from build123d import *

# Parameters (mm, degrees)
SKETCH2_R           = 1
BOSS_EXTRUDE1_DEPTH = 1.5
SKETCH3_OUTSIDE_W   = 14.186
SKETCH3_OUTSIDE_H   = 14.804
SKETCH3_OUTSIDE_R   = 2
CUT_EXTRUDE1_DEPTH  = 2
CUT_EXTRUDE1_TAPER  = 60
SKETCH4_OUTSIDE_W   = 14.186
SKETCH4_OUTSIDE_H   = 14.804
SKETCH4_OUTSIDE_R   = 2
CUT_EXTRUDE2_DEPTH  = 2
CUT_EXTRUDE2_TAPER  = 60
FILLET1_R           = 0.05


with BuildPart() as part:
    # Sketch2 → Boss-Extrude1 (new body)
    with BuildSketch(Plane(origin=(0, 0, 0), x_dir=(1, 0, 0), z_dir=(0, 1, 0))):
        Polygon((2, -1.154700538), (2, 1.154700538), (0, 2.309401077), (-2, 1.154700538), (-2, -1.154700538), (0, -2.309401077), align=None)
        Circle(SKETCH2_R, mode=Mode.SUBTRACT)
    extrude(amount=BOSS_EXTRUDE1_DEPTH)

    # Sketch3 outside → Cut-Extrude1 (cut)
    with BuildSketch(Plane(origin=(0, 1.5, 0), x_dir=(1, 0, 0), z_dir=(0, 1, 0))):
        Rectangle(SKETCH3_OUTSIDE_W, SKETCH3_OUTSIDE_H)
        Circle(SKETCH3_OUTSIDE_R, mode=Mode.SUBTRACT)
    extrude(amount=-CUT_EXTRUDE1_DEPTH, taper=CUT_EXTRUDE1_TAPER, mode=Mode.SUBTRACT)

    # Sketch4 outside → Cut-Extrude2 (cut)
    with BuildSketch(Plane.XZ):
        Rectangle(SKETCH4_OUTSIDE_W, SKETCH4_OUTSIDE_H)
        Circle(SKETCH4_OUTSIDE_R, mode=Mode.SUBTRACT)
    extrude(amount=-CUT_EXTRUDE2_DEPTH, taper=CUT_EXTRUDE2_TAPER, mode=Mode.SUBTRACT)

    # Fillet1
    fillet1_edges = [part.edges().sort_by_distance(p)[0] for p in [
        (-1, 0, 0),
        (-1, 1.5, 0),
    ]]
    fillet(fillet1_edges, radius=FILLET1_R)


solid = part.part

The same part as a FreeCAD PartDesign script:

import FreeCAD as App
import Part
import Sketcher
Q = App.Units.Quantity


def edges_at(feature, points):
    """Names of the edges that pass closest to the given points."""
    edges = feature.Shape.Edges
    near = lambda p: min(range(len(edges)), key=lambda i: edges[i].distToShape(Part.Vertex(*p))[0])
    return sorted({f"Edge{near(p) + 1}" for p in points})

doc = App.newDocument("Part")
body = doc.addObject("PartDesign::Body", "Body")

sketch1 = body.newObject("Sketcher::SketchObject", "Sketch")
sketch1.AttachmentSupport = (doc.getObject("XZ_Plane"), [""])
sketch1.MapMode = "FlatFace"
sketch1.addGeometry([
    Part.LineSegment(App.Vector(2, 1.154701, 0), App.Vector(2, -1.154701, 0)),
    Part.LineSegment(App.Vector(2, -1.154701, 0), App.Vector(0, -2.309401, 0)),
    Part.LineSegment(App.Vector(0, -2.309401, 0), App.Vector(-2, -1.154701, 0)),
    Part.LineSegment(App.Vector(-2, -1.154701, 0), App.Vector(-2, 1.154701, 0)),
    Part.LineSegment(App.Vector(-2, 1.154701, 0), App.Vector(0, 2.309401, 0)),
    Part.LineSegment(App.Vector(0, 2.309401, 0), App.Vector(2, 1.154701, 0)),
    Part.Circle(App.Vector(0, 0, 0), App.Vector(0, 0, 1), 1),
], False)
sketch1.addConstraint([
    Sketcher.Constraint("Coincident", 0, 2, 1, 1),
    Sketcher.Constraint("Coincident", 1, 2, 2, 1),
    Sketcher.Constraint("Coincident", 2, 2, 3, 1),
    Sketcher.Constraint("Coincident", 3, 2, 4, 1),
    Sketcher.Constraint("Coincident", 4, 2, 5, 1),
    Sketcher.Constraint("Coincident", 5, 2, 0, 1),
    Sketcher.Constraint("Vertical", 0),
    Sketcher.Constraint("Vertical", 3),
    Sketcher.Constraint("Coincident", 6, 3, -1, 1),
    Sketcher.Constraint("Symmetric", 0, 2, 3, 2, -1, 1),
    Sketcher.Constraint("Symmetric", 1, 2, 4, 2, -1, 1),
    Sketcher.Constraint("PointOnObject", 1, 2, -2),
    Sketcher.Constraint("Parallel", 2, 5),
    Sketcher.Constraint("Horizontal", 0, 2, 2, 2),
    Sketcher.Constraint("Diameter", 6, Q("2 mm")),
    Sketcher.Constraint("Angle", 1, Q("-150 deg")),
    Sketcher.Constraint("DistanceX", -1, 1, 0, 2, Q("2 mm")),
    Sketcher.Constraint("DistanceY", 0, 2, 0, 1, Q("2.309401 mm")),
])
pad1 = body.newObject("PartDesign::Pad", "Pad")
pad1.Profile = sketch1
pad1.Length = 1.5
pad1.Reversed = True

sketch2 = body.newObject("Sketcher::SketchObject", "Sketch001")
sketch2.AttachmentSupport = (doc.getObject("XZ_Plane"), [""])
sketch2.MapMode = "FlatFace"
sketch2.AttachmentOffset = App.Placement(App.Vector(0, 0, -1.5), App.Rotation())
sketch2.addGeometry([
    Part.LineSegment(App.Vector(-7.093, -7.402, 0), App.Vector(-7.093, 7.402, 0)),
    Part.LineSegment(App.Vector(-7.093, 7.402, 0), App.Vector(7.093, 7.402, 0)),
    Part.LineSegment(App.Vector(7.093, 7.402, 0), App.Vector(7.093, -7.402, 0)),
    Part.LineSegment(App.Vector(7.093, -7.402, 0), App.Vector(-7.093, -7.402, 0)),
    Part.Circle(App.Vector(0, 0, 0), App.Vector(0, 0, 1), 2),
], False)
sketch2.addConstraint([
    Sketcher.Constraint("Coincident", 0, 2, 1, 1),
    Sketcher.Constraint("Coincident", 1, 2, 2, 1),
    Sketcher.Constraint("Coincident", 2, 2, 3, 1),
    Sketcher.Constraint("Coincident", 3, 2, 0, 1),
    Sketcher.Constraint("Vertical", 0),
    Sketcher.Constraint("Horizontal", 1),
    Sketcher.Constraint("Vertical", 2),
    Sketcher.Constraint("Horizontal", 3),
    Sketcher.Constraint("Coincident", 4, 3, -1, 1),
    Sketcher.Constraint("Symmetric", 0, 2, 2, 2, -1, 1),
    Sketcher.Constraint("Diameter", 4, Q("4 mm")),
    Sketcher.Constraint("DistanceX", 1, 1, 1, 2, Q("14.186 mm")),
    Sketcher.Constraint("DistanceY", 0, 1, 0, 2, Q("14.804 mm")),
])
pocket1 = body.newObject("PartDesign::Pocket", "Pocket")
pocket1.Profile = sketch2
pocket1.Length = 2
pocket1.Reversed = True
pocket1.TaperAngle = 60

sketch3 = body.newObject("Sketcher::SketchObject", "Sketch002")
sketch3.AttachmentSupport = (doc.getObject("XZ_Plane"), [""])
sketch3.MapMode = "FlatFace"
sketch3.addGeometry([
    Part.LineSegment(App.Vector(-7.093, 7.402, 0), App.Vector(-7.093, -7.402, 0)),
    Part.LineSegment(App.Vector(-7.093, -7.402, 0), App.Vector(7.093, -7.402, 0)),
    Part.LineSegment(App.Vector(7.093, -7.402, 0), App.Vector(7.093, 7.402, 0)),
    Part.LineSegment(App.Vector(7.093, 7.402, 0), App.Vector(-7.093, 7.402, 0)),
    Part.Circle(App.Vector(0, 0, 0), App.Vector(0, 0, 1), 2),
], False)
sketch3.addConstraint([
    Sketcher.Constraint("Coincident", 0, 2, 1, 1),
    Sketcher.Constraint("Coincident", 1, 2, 2, 1),
    Sketcher.Constraint("Coincident", 2, 2, 3, 1),
    Sketcher.Constraint("Coincident", 3, 2, 0, 1),
    Sketcher.Constraint("Vertical", 0),
    Sketcher.Constraint("Horizontal", 1),
    Sketcher.Constraint("Vertical", 2),
    Sketcher.Constraint("Horizontal", 3),
    Sketcher.Constraint("Coincident", 4, 3, -1, 1),
    Sketcher.Constraint("Symmetric", 0, 2, 2, 2, -1, 1),
    Sketcher.Constraint("Diameter", 4, Q("4 mm")),
    Sketcher.Constraint("DistanceX", 1, 1, 1, 2, Q("14.186 mm")),
    Sketcher.Constraint("DistanceY", 0, 2, 0, 1, Q("14.804 mm")),
])
pocket2 = body.newObject("PartDesign::Pocket", "Pocket001")
pocket2.Profile = sketch3
pocket2.Length = 2
pocket2.TaperAngle = 60
doc.recompute()

fillet = body.newObject("PartDesign::Fillet", "Fillet")
fillet.Base = (pocket2, edges_at(pocket2, [(-1, 0, 0), (-1, 1.5, 0)]))
fillet.Radius = 0.05

doc.recompute()
